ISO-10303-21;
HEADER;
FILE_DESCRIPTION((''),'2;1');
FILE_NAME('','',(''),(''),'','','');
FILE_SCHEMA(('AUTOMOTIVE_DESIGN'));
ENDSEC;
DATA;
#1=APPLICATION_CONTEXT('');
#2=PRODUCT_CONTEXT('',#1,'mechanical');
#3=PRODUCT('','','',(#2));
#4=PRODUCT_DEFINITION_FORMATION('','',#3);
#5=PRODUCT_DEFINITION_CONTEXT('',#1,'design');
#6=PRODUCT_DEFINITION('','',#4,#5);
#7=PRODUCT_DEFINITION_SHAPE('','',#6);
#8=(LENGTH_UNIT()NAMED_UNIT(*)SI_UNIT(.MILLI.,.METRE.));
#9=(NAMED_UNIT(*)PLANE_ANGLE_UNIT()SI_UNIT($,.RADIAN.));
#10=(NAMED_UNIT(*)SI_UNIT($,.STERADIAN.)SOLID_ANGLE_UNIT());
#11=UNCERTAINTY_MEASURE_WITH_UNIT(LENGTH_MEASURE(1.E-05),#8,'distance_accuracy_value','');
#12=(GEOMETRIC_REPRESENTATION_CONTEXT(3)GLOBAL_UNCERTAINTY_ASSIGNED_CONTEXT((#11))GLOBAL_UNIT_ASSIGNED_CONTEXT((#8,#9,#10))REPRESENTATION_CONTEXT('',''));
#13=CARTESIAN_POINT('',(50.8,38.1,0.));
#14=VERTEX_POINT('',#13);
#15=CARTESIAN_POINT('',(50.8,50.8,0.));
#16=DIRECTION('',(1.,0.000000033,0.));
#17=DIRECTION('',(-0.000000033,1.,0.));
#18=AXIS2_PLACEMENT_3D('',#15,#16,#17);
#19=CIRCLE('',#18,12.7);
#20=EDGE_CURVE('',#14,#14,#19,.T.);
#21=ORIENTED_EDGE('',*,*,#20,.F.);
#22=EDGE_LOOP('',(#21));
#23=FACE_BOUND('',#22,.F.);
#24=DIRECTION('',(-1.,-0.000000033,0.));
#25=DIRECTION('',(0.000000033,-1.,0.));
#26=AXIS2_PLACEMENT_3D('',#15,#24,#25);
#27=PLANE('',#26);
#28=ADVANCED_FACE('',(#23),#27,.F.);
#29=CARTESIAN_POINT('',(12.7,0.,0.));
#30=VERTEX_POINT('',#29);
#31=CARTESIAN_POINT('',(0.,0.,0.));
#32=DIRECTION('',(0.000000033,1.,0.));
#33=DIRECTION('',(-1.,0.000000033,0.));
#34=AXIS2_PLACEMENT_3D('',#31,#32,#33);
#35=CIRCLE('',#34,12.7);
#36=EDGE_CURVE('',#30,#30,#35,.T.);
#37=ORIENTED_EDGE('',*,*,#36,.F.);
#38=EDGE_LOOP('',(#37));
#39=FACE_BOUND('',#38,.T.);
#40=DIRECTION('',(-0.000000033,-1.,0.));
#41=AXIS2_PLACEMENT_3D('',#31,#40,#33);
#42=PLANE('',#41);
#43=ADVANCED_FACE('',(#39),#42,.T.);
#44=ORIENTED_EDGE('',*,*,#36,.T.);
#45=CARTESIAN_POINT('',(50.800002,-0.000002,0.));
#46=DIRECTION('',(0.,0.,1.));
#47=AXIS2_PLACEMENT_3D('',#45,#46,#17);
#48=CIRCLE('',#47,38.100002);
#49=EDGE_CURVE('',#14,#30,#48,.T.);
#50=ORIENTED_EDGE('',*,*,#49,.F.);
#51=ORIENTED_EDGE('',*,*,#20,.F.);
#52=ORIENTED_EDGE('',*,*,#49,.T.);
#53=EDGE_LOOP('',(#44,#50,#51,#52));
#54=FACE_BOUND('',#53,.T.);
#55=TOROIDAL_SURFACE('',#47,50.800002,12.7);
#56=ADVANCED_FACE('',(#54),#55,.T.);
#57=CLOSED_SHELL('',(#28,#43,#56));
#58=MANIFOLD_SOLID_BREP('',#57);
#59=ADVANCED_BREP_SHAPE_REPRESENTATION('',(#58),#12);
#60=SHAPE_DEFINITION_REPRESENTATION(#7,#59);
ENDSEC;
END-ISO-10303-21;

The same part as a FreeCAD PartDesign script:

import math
import FreeCAD as App
import Part
import Sketcher

V = App.Vector
Q = App.Units.Quantity

doc = App.newDocument("Part")
body = doc.addObject("PartDesign::Body", "Body")

# Sketch on XZ plane
sketch1 = body.newObject("Sketcher::SketchObject", "Sketch")
sketch1.AttachmentSupport = (doc.getObject("XZ_Plane"), [""])
sketch1.MapMode = "FlatFace"
sketch1.addGeometry(Part.Circle(V(0, 0, 0), V(0, 0, 1), 13), False)
sketch1.addConstraint(Sketcher.Constraint("Coincident", 0, 3, -1, 1))
sketch1.addConstraint(Sketcher.Constraint("Diameter", 0, Q("1 in")))

# Sketch on XY plane
sketch2 = body.newObject("Sketcher::SketchObject", "Sketch001")
sketch2.AttachmentSupport = (doc.getObject("XY_Plane"), [""])
sketch2.MapMode = "FlatFace"
sketch2.addGeometry(Part.ArcOfCircle(Part.Circle(V(51, 0, 0), V(0, 0, 1), 51), math.radians(90), math.radians(180)), False)
sketch2.addConstraint(Sketcher.Constraint("Coincident", 0, 2, -1, 1))
sketch2.addConstraint(Sketcher.Constraint("PointOnObject", 0, 3, -1))
sketch2.addConstraint(Sketcher.Constraint("Radius", 0, Q("2.0000001 in")))
sketch2.addConstraint(Sketcher.Constraint("DistanceX", -1, 1, 0, 1, Q("2 in")))
doc.recompute()

additivepipe = body.newObject("PartDesign::AdditivePipe", "AdditivePipe")
additivepipe.Profile = sketch1
additivepipe.Spine = (sketch2, ["Edge1"])

doc.recompute()
